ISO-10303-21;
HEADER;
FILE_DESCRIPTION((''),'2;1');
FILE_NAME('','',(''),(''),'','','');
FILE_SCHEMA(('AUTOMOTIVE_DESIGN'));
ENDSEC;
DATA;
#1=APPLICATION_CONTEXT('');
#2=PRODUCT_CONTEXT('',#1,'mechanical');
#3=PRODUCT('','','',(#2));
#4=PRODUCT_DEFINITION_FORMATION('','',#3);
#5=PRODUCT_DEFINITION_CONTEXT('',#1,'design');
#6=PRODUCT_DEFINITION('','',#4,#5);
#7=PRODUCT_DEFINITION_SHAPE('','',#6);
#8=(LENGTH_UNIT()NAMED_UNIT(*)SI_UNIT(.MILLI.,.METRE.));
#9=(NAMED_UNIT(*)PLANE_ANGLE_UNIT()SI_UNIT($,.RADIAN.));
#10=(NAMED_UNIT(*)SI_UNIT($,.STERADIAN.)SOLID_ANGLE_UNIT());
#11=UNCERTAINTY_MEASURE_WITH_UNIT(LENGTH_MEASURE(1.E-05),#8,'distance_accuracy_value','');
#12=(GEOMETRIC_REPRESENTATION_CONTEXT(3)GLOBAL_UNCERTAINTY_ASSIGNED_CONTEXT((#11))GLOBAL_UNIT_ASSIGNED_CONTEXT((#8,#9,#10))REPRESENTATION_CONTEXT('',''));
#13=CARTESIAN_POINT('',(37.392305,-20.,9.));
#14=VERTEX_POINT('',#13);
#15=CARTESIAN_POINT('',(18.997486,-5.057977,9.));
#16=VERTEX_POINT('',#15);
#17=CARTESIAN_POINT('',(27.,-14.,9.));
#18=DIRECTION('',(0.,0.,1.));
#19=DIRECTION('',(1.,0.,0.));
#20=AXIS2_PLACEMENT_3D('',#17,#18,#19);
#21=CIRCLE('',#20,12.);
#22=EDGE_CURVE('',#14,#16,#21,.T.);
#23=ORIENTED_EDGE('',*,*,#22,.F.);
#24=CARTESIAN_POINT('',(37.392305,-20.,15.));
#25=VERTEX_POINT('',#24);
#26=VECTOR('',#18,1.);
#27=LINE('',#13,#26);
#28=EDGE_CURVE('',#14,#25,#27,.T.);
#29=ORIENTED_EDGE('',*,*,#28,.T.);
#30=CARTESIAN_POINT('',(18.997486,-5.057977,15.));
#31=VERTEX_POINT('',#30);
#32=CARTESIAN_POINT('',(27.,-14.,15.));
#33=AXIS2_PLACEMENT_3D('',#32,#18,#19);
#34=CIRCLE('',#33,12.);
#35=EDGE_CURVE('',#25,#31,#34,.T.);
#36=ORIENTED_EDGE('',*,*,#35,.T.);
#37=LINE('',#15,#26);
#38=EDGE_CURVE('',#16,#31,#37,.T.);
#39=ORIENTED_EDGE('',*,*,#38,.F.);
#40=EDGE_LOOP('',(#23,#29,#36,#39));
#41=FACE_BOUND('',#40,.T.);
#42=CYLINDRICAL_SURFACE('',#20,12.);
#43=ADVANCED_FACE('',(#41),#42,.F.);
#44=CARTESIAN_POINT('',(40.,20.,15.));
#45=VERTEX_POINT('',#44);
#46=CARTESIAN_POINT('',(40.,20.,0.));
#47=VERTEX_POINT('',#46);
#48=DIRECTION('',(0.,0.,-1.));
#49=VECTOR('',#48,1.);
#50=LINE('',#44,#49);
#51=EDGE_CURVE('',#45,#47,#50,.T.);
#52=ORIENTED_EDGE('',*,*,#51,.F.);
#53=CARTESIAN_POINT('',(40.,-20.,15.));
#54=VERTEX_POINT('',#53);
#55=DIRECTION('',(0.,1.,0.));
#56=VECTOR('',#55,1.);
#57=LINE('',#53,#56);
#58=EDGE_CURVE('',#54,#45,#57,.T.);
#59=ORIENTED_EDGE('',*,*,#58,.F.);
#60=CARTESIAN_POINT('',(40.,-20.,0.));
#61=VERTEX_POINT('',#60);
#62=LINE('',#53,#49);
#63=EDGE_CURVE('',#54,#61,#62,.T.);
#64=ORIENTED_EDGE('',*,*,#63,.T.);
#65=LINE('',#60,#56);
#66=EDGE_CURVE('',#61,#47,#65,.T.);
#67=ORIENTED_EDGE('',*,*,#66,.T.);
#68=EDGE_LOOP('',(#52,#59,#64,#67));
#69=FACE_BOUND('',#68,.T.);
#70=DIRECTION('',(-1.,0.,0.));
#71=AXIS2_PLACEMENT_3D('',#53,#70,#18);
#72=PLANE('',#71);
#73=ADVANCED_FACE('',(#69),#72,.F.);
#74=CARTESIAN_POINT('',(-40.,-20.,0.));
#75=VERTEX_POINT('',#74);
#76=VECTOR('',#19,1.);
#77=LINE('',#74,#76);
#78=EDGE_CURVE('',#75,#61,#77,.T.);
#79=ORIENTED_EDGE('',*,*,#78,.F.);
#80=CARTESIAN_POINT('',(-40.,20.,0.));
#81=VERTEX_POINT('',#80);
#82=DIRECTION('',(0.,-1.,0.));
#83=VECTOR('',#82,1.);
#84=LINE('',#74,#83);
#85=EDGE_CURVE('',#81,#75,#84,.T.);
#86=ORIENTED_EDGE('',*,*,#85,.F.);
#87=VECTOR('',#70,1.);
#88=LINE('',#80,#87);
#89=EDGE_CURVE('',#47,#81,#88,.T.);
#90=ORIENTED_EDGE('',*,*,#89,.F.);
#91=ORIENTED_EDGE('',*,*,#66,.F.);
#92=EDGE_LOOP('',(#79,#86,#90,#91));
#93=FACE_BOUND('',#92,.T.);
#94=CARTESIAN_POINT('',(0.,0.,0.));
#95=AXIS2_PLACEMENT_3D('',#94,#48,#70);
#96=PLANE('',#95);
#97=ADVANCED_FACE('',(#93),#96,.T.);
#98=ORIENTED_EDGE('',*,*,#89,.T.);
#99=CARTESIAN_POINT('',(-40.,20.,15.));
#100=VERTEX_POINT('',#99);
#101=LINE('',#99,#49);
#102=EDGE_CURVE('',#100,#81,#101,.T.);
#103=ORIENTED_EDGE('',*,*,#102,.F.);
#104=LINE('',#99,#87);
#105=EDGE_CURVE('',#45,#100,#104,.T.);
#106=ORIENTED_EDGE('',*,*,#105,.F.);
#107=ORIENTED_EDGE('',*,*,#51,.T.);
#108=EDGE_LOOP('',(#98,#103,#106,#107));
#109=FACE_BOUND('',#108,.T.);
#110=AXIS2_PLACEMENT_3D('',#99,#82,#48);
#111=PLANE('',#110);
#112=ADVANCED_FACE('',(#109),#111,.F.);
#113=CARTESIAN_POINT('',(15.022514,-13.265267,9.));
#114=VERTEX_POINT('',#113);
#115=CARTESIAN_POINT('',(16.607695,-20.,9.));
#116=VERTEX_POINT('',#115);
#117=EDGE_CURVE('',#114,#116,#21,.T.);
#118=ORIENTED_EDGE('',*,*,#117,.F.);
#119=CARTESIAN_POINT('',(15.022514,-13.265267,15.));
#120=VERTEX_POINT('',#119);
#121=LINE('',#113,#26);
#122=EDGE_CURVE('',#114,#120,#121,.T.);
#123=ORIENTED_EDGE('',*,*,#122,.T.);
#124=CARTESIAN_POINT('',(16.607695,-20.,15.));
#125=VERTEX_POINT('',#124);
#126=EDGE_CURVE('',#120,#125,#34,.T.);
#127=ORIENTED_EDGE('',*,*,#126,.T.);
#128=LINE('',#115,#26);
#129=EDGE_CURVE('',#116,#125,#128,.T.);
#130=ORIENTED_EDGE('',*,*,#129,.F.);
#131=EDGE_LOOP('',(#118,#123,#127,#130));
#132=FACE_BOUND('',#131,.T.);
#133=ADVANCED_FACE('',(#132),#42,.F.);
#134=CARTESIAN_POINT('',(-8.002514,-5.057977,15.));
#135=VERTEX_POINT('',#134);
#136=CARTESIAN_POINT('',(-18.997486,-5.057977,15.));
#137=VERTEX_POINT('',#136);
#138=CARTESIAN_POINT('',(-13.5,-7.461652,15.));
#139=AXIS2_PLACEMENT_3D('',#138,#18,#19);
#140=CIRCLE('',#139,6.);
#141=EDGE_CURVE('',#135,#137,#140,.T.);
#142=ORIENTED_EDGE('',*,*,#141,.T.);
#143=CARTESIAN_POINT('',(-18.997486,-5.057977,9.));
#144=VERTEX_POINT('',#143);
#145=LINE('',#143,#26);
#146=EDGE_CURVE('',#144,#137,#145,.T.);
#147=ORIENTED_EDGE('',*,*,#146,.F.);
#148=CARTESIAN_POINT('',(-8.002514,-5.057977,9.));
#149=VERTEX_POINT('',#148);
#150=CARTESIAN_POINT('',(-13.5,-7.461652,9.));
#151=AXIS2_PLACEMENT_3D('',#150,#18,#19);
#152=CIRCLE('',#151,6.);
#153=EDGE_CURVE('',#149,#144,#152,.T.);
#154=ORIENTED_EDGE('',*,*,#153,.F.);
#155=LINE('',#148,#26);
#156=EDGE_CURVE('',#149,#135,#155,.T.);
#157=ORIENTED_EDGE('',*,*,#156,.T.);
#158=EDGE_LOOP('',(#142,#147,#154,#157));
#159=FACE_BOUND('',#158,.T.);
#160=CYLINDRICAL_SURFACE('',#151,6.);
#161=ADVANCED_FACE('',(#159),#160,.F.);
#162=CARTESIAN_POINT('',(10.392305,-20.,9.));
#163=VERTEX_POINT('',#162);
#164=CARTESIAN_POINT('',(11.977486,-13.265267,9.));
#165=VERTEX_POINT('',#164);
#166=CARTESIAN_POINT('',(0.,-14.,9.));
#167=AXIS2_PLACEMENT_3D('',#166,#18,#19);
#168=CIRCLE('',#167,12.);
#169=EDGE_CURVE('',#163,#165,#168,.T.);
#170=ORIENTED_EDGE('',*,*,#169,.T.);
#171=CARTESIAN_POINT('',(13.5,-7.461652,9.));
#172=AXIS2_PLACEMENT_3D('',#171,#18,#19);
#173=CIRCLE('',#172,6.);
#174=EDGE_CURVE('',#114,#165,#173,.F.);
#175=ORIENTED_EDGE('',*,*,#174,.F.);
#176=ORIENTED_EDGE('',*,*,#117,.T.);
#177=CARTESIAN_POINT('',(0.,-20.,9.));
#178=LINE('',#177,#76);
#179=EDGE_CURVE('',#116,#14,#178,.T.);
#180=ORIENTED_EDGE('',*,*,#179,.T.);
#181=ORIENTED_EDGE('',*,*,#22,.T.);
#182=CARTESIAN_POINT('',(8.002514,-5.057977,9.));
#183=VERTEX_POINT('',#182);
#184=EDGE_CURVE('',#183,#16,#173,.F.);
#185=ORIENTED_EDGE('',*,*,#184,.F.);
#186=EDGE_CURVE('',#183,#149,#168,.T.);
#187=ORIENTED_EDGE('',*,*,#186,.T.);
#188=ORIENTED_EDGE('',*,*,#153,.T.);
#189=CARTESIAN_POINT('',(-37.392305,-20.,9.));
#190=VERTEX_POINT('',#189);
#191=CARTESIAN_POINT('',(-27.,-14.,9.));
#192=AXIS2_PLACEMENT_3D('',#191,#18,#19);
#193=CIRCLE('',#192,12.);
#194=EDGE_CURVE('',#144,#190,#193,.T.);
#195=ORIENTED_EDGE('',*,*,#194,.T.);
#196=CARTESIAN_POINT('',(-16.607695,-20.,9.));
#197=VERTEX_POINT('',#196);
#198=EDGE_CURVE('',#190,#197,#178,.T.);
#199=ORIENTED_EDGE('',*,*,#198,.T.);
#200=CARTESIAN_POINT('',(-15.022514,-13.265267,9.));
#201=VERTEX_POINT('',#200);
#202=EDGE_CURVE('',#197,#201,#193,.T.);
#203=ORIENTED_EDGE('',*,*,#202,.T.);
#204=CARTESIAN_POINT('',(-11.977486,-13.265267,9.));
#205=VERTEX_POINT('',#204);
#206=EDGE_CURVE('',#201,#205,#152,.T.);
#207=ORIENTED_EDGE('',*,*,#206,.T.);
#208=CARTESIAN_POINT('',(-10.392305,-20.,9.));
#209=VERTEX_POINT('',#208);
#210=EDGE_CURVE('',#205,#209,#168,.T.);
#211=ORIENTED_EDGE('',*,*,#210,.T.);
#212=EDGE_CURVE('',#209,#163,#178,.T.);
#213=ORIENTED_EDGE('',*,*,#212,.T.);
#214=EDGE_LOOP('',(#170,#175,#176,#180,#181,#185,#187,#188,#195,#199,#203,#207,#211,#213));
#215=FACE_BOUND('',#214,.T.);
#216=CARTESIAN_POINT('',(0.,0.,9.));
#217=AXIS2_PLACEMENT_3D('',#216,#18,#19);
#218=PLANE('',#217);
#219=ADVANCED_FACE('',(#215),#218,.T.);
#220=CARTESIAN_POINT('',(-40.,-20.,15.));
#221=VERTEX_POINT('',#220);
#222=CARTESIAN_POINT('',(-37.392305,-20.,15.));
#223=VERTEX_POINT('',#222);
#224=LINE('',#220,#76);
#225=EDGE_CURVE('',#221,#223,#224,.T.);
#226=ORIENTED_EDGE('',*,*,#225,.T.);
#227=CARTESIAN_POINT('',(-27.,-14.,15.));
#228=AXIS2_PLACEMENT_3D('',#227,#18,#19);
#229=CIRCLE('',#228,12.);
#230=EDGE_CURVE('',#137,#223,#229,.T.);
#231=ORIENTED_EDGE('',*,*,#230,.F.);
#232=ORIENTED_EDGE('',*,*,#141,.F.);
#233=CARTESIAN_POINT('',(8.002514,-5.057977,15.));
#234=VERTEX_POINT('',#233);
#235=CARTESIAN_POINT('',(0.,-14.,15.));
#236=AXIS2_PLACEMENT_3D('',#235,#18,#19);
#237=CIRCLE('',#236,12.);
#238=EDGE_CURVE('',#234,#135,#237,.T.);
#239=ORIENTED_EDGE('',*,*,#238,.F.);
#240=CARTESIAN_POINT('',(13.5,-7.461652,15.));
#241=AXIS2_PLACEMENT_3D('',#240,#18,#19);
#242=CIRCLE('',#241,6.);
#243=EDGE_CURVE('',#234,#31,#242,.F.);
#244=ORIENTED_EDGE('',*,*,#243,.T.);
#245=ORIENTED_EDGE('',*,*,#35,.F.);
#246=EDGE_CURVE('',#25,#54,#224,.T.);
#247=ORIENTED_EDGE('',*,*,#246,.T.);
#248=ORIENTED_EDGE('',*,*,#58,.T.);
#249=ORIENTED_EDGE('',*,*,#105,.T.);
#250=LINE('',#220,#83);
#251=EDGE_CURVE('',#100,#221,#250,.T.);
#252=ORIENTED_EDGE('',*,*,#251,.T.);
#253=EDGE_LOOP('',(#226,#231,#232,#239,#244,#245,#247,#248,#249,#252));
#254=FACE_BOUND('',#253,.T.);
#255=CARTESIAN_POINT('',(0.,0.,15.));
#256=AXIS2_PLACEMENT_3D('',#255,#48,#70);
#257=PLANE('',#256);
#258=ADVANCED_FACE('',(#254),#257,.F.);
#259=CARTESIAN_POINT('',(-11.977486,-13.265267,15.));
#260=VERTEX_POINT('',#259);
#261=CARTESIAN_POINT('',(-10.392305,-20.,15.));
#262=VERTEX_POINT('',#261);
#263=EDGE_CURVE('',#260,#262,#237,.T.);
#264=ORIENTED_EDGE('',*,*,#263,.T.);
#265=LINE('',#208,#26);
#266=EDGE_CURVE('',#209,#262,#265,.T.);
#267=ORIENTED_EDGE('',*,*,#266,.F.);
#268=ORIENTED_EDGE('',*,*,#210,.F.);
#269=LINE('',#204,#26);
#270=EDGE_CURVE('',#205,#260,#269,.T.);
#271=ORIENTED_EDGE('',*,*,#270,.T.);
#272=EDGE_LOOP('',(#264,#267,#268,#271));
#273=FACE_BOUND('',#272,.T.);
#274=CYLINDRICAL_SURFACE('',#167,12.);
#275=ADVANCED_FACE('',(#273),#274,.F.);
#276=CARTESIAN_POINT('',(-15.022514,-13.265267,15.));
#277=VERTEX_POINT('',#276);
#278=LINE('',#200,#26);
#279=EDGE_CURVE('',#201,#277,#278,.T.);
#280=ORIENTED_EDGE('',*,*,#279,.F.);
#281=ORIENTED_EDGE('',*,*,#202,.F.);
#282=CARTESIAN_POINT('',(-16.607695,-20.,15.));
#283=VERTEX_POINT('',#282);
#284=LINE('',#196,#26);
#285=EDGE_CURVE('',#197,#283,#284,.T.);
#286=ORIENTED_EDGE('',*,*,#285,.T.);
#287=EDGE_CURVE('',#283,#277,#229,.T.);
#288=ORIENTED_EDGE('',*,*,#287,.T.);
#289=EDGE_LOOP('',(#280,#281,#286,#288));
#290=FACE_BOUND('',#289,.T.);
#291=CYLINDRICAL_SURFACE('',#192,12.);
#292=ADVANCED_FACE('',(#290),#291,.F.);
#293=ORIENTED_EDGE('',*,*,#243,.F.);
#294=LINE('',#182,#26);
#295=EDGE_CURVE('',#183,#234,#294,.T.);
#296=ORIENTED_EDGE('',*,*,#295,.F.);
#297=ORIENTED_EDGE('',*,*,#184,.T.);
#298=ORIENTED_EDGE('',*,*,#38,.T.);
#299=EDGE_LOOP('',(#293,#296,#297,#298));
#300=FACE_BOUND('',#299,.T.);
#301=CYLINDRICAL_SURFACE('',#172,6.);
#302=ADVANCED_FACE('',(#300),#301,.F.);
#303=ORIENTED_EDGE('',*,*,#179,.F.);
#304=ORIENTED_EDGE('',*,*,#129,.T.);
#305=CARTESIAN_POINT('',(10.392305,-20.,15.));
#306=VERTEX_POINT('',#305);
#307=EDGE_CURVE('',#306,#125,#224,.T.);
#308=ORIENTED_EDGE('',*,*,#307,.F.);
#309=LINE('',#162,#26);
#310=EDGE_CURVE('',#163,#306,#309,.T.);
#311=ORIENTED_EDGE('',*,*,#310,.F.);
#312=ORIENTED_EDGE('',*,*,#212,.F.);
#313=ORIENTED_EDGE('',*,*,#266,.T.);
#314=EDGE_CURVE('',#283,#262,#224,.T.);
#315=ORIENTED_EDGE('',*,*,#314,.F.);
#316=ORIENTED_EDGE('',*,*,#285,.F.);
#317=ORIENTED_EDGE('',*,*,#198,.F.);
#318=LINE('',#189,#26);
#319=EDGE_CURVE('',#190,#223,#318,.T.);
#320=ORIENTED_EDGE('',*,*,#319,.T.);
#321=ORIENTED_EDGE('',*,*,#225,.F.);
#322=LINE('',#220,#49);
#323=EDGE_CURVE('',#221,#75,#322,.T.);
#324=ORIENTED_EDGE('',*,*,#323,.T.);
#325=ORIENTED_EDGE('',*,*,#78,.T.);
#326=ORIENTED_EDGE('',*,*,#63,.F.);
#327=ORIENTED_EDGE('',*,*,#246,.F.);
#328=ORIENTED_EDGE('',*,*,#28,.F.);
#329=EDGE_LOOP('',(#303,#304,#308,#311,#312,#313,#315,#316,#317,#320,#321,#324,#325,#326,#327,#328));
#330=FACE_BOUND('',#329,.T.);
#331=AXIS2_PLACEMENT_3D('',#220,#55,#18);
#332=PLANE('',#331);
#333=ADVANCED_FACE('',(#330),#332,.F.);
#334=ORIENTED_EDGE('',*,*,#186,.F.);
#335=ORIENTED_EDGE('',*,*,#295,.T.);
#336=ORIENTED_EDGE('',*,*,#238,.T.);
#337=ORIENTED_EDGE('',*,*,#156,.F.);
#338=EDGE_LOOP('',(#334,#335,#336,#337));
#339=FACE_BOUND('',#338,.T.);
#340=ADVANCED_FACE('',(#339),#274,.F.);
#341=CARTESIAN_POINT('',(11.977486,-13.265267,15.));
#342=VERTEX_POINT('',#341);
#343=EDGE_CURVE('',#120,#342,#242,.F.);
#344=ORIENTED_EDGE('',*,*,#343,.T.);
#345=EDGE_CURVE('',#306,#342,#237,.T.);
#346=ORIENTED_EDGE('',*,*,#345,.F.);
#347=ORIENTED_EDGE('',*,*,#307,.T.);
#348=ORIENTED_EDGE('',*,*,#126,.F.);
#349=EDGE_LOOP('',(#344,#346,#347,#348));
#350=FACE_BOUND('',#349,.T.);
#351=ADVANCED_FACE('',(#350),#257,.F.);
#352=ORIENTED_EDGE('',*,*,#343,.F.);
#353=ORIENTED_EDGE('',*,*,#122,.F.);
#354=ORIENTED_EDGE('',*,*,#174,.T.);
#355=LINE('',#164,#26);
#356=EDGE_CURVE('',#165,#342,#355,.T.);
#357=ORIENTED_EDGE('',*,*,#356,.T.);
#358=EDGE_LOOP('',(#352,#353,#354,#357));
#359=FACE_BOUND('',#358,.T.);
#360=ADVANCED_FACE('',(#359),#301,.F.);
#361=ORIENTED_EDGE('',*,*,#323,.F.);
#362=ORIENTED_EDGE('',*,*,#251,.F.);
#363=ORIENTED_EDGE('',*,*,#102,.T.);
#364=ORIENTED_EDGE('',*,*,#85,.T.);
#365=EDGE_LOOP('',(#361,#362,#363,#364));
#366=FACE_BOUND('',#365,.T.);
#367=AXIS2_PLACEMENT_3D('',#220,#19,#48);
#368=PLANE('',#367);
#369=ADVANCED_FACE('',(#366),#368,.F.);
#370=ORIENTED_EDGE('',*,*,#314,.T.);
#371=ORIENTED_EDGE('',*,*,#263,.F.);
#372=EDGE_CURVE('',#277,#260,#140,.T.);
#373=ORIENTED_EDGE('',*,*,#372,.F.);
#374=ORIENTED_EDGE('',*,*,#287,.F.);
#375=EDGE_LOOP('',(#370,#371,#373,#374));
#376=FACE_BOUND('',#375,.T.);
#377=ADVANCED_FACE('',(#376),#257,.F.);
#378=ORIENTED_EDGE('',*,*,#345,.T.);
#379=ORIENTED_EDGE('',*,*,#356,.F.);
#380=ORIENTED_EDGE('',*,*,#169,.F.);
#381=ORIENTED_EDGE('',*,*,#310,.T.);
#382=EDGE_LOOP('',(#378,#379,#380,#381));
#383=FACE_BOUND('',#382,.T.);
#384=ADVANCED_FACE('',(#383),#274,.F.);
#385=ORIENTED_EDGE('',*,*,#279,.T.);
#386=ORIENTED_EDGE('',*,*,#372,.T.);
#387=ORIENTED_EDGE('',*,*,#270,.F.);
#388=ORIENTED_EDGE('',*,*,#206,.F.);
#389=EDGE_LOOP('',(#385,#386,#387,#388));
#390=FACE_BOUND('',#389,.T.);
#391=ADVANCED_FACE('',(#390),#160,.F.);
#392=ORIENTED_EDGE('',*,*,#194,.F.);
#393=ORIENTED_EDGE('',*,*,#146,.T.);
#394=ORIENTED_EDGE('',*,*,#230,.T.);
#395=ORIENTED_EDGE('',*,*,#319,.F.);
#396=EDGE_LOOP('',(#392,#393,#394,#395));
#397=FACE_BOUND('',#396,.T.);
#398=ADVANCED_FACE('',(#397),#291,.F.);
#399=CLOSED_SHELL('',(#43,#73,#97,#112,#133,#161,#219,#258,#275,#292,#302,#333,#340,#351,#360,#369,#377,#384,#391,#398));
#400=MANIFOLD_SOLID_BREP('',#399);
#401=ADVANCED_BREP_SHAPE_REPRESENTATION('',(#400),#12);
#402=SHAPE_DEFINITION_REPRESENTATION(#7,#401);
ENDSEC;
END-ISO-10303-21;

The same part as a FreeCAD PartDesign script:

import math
import FreeCAD as App
import Part
import Sketcher

V = App.Vector

doc = App.newDocument("Part")
params = doc.addObject("Spreadsheet::Sheet", "Params")
for row, (alias, value) in enumerate([
    ("sketch1_width", "80 mm"),
    ("sketch1_height", "40 mm"),
    ("pad1_length", "15 mm"),
    ("sketch2_radius", "12 mm"),
    ("sketch2_radius2", "6 mm"),
    ("pocket1_length", "6 mm"),
], start=1):
    params.set(f"A{row}", alias)
    params.set(f"B{row}", "=" + value)
    params.setAlias(f"B{row}", alias)

body = doc.addObject("PartDesign::Body", "Body")

# Sketch on XY plane
sketch1 = body.newObject("Sketcher::SketchObject", "Sketch")
sketch1.AttachmentSupport = (doc.getObject("XY_Plane"), [""])
sketch1.MapMode = "FlatFace"
sketch1.addGeometry(Part.LineSegment(V(-40, 20, 0), V(-40, -20, 0)), False)
sketch1.addGeometry(Part.LineSegment(V(-40, -20, 0), V(40, -20, 0)), False)
sketch1.addGeometry(Part.LineSegment(V(40, -20, 0), V(40, 20, 0)), False)
sketch1.addGeometry(Part.LineSegment(V(40, 20, 0), V(-40, 20, 0)), False)
sketch1.addConstraint(Sketcher.Constraint("Coincident", 0, 2, 1, 1))
sketch1.addConstraint(Sketcher.Constraint("Coincident", 1, 2, 2, 1))
sketch1.addConstraint(Sketcher.Constraint("Coincident", 2, 2, 3, 1))
sketch1.addConstraint(Sketcher.Constraint("Coincident", 3, 2, 0, 1))
sketch1.addConstraint(Sketcher.Constraint("Vertical", 0))
sketch1.addConstraint(Sketcher.Constraint("Horizontal", 1))
sketch1.addConstraint(Sketcher.Constraint("Vertical", 2))
sketch1.addConstraint(Sketcher.Constraint("Horizontal", 3))
sketch1.addConstraint(Sketcher.Constraint("Symmetric", 0, 2, 2, 2, -1, 1))
sketch1.addConstraint(Sketcher.Constraint("DistanceX", 1, 1, 1, 2, 80.0))
sketch1.addConstraint(Sketcher.Constraint("DistanceY", 0, 2, 0, 1, 40.0))
sketch1.setExpression("Constraints[9]", "Params.sketch1_width")
sketch1.setExpression("Constraints[10]", "Params.sketch1_height")
pad1 = body.newObject("PartDesign::Pad", "Pad")
pad1.Profile = sketch1
pad1.setExpression("Length", "Params.pad1_length")

# Sketch on XY plane
sketch2 = body.newObject("Sketcher::SketchObject", "Sketch001")
sketch2.AttachmentSupport = (doc.getObject("XY_Plane"), [""])
sketch2.MapMode = "FlatFace"
sketch2.AttachmentOffset = App.Placement(V(0, 0, 15), App.Rotation())
sketch2.addGeometry(Part.ArcOfCircle(Part.Circle(V(0, -14, 0), V(0, 0, 1), 12), math.radians(-30), math.radians(0)), False)
sketch2.addGeometry(Part.ArcOfCircle(Part.Circle(V(0.000001, -14, 0), V(0, 0, 1), 11.999999), math.radians(0), math.radians(3.510288)), False)
sketch2.addGeometry(Part.ArcOfCircle(Part.Circle(V(13.5, -7.461652, 0), V(0, 0, 1), 6), math.radians(-104.699669), math.radians(-75.300331)), False)
sketch2.addGeometry(Part.ArcOfCircle(Part.Circle(V(27, -14, 0), V(0, 0, 1), 12), math.radians(176.489712), math.radians(210)), False)
sketch2.addGeometry(Part.ArcOfCircle(Part.Circle(V(27, -14, 0), V(0, 0, 1), 12), math.radians(-150), math.radians(-30)), False)
sketch2.addGeometry(Part.ArcOfCircle(Part.Circle(V(27, -14, 0), V(0, 0, 1), 12), math.radians(-30), math.radians(0)), False)
sketch2.addGeometry(Part.ArcOfCircle(Part.Circle(V(27, -14, 0), V(0, 0, 1), 12), math.radians(0), math.radians(131.826422)), False)
sketch2.addGeometry(Part.ArcOfCircle(Part.Circle(V(13.5, -7.461652, 0), V(0, 0, 1), 6), math.radians(23.616465), math.radians(156.383535)), False)
sketch2.addGeometry(Part.ArcOfCircle(Part.Circle(V(0, -14, 0), V(0, 0, 1), 12), math.radians(48.173578), math.radians(131.826422)), False)
sketch2.addGeometry(Part.ArcOfCircle(Part.Circle(V(-13.5, -7.461652, 0), V(0, 0, 1), 6), math.radians(23.616465), math.radians(156.383535)), False)
sketch2.addGeometry(Part.ArcOfCircle(Part.Circle(V(-27, -14, 0), V(0, 0, 1), 12), math.radians(48.173578), math.radians(330)), False)
sketch2.addGeometry(Part.ArcOfCircle(Part.Circle(V(-27, -14, 0), V(0, 0, 1), 12), math.radians(-30), math.radians(0)), False)
sketch2.addGeometry(Part.ArcOfCircle(Part.Circle(V(-27, -14, 0), V(0, 0, 1), 12), math.radians(0), math.radians(3.510288)), False)
sketch2.addGeometry(Part.ArcOfCircle(Part.Circle(V(-13.5, -7.461652, 0), V(0, 0, 1), 6), math.radians(-104.699669), math.radians(-75.300331)), False)
sketch2.addGeometry(Part.ArcOfCircle(Part.Circle(V(0, -14, 0), V(0, 0, 1), 12), math.radians(176.489712), math.radians(330)), False)
sketch2.addConstraint(Sketcher.Constraint("Tangent", 0, 2, 1, 1))
sketch2.addConstraint(Sketcher.Constraint("Coincident", 1, 2, 2, 1))
sketch2.addConstraint(Sketcher.Constraint("Coincident", 2, 2, 3, 1))
sketch2.addConstraint(Sketcher.Constraint("Tangent", 3, 2, 4, 1))
sketch2.addConstraint(Sketcher.Constraint("Tangent", 4, 2, 5, 1))
sketch2.addConstraint(Sketcher.Constraint("Tangent", 5, 2, 6, 1))
sketch2.addConstraint(Sketcher.Constraint("Coincident", 6, 2, 7, 1))
sketch2.addConstraint(Sketcher.Constraint("Coincident", 7, 2, 8, 1))
sketch2.addConstraint(Sketcher.Constraint("Coincident", 8, 2, 9, 1))
sketch2.addConstraint(Sketcher.Constraint("Coincident", 9, 2, 10, 1))
sketch2.addConstraint(Sketcher.Constraint("Tangent", 10, 2, 11, 1))
sketch2.addConstraint(Sketcher.Constraint("Tangent", 11, 2, 12, 1))
sketch2.addConstraint(Sketcher.Constraint("Coincident", 12, 2, 13, 1))
sketch2.addConstraint(Sketcher.Constraint("Coincident", 13, 2, 14, 1))
sketch2.addConstraint(Sketcher.Constraint("Tangent", 14, 2, 0, 1))
sketch2.addConstraint(Sketcher.Constraint("Coincident", 5, 3, 3, 3))
sketch2.addConstraint(Sketcher.Constraint("Coincident", 7, 3, 2, 3))
sketch2.addConstraint(Sketcher.Constraint("Coincident", 8, 3, 0, 3))
sketch2.addConstraint(Sketcher.Constraint("Coincident", 12, 3, 10, 3))
sketch2.addConstraint(Sketcher.Constraint("Coincident", 13, 3, 9, 3))
sketch2.addConstraint(Sketcher.Constraint("Equal", 0, 1))
sketch2.addConstraint(Sketcher.Constraint("Equal", 1, 3))
sketch2.addConstraint(Sketcher.Constraint("Equal", 5, 6))
sketch2.addConstraint(Sketcher.Constraint("Equal", 2, 7))
sketch2.addConstraint(Sketcher.Constraint("Equal", 6, 8))
sketch2.addConstraint(Sketcher.Constraint("Equal", 7, 9))
sketch2.addConstraint(Sketcher.Constraint("Equal", 8, 10))
sketch2.addConstraint(Sketcher.Constraint("Equal", 9, 13))
sketch2.addConstraint(Sketcher.Constraint("Equal", 12, 14))
sketch2.addConstraint(Sketcher.Constraint("Symmetric", 2, 3, 9, 3, -2))
sketch2.addConstraint(Sketcher.Constraint("Symmetric", 3, 3, 10, 3, -2))
sketch2.addConstraint(Sketcher.Constraint("PointOnObject", 0, 3, -2))
sketch2.addConstraint(Sketcher.Constraint("Horizontal", 1, 3, 3, 3))
sketch2.addConstraint(Sketcher.Constraint("Horizontal", 14, 3, 0, 2))
sketch2.addConstraint(Sketcher.Constraint("Horizontal", 1, 2, 2, 2))
sketch2.addConstraint(Sketcher.Constraint("Horizontal", 3, 2, 4, 2))
sketch2.addConstraint(Sketcher.Constraint("Horizontal", 0, 2, 5, 2))
sketch2.addConstraint(Sketcher.Constraint("Horizontal", 4, 2, 10, 2))
sketch2.addConstraint(Sketcher.Constraint("Horizontal", 5, 2, 11, 2))
sketch2.addConstraint(Sketcher.Constraint("Horizontal", 10, 2, 14, 2))
sketch2.addConstraint(Sketcher.Constraint("Radius", 0, 12.0))
sketch2.addConstraint(Sketcher.Constraint("Radius", 2, 6.0))
sketch2.addConstraint(Sketcher.Constraint("DistanceY", 0, 3, -1, 1, 14.0))
sketch2.addConstraint(Sketcher.Constraint("DistanceX", -1, 1, 3, 3, 27.0))
sketch2.addConstraint(Sketcher.Constraint("DistanceY", 3, 2, -1, 1, 20.0))
sketch2.addConstraint(Sketcher.Constraint("DistanceX", 1, 2, 6, 2, 7.02))
sketch2.setExpression("Constraints[40]", "Params.sketch2_radius")
sketch2.setExpression("Constraints[41]", "Params.sketch2_radius2")
pocket1 = body.newObject("PartDesign::Pocket", "Pocket")
pocket1.Profile = sketch2
pocket1.setExpression("Length", "Params.pocket1_length")

doc.recompute()
